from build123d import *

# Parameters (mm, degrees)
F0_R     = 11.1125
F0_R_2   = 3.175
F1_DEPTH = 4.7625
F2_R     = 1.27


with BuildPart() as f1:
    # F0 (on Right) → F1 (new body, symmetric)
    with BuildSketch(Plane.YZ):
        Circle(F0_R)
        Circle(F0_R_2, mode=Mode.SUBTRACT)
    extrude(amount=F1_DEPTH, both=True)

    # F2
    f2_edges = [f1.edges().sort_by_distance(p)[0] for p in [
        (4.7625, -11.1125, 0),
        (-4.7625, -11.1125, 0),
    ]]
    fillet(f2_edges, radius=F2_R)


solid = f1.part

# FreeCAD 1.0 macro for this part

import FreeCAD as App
import Part
import Sketcher
Q = App.Units.Quantity


def edges_at(feature, points):
    """Names of the edges that pass closest to the given points."""
    edges = feature.Shape.Edges
    near = lambda p: min(range(len(edges)), key=lambda i: edges[i].distToShape(Part.Vertex(*p))[0])
    return sorted({f"Edge{near(p) + 1}" for p in points})

doc = App.newDocument("Part")
params = doc.addObject("Spreadsheet::Sheet", "Params")
for row, (alias, value) in enumerate([
    ("sketch1_diameter", "0.25 in"),
    ("sketch1_diameter2", "0.875 in"),
    ("pad1_length", "0.375 in"),
    ("fillet_radius", "0.05 in"),
], start=1):
    params.set(f"A{row}", alias)
    params.set(f"B{row}", "=" + value)
    params.setAlias(f"B{row}", alias)

body = doc.addObject("PartDesign::Body", "Body")

# Sketch on YZ plane
sketch1 = body.newObject("Sketcher::SketchObject", "Sketch")
sketch1.AttachmentSupport = (doc.getObject("YZ_Plane"), [""])
sketch1.MapMode = "FlatFace"
sketch1.addGeometry([
    Part.Circle(App.Vector(0, 0, 0), App.Vector(0, 0, 1), 11.1),
    Part.Circle(App.Vector(0, 0, 0), App.Vector(0, 0, 1), 3.2),
], False)
sketch1.addConstraint([
    Sketcher.Constraint("Coincident", 0, 3, -1, 1),
    Sketcher.Constraint("Coincident", 1, 3, -1, 1),
    Sketcher.Constraint("Diameter", 1, Q("0.25 in")),
    Sketcher.Constraint("Diameter", 0, Q("0.875 in")),
])
sketch1.setExpression("Constraints[2]", "Params.sketch1_diameter")
sketch1.setExpression("Constraints[3]", "Params.sketch1_diameter2")
pad1 = body.newObject("PartDesign::Pad", "Pad")
pad1.Profile = sketch1
pad1.setExpression("Length", "Params.pad1_length")
pad1.Midplane = True
doc.recompute()

fillet = body.newObject("PartDesign::Fillet", "Fillet")
fillet.Base = (pad1, edges_at(pad1, [(4.763, -11.113, 0), (-4.763, -11.113, 0)]))
fillet.setExpression("Radius", "Params.fillet_radius")

doc.recompute()
